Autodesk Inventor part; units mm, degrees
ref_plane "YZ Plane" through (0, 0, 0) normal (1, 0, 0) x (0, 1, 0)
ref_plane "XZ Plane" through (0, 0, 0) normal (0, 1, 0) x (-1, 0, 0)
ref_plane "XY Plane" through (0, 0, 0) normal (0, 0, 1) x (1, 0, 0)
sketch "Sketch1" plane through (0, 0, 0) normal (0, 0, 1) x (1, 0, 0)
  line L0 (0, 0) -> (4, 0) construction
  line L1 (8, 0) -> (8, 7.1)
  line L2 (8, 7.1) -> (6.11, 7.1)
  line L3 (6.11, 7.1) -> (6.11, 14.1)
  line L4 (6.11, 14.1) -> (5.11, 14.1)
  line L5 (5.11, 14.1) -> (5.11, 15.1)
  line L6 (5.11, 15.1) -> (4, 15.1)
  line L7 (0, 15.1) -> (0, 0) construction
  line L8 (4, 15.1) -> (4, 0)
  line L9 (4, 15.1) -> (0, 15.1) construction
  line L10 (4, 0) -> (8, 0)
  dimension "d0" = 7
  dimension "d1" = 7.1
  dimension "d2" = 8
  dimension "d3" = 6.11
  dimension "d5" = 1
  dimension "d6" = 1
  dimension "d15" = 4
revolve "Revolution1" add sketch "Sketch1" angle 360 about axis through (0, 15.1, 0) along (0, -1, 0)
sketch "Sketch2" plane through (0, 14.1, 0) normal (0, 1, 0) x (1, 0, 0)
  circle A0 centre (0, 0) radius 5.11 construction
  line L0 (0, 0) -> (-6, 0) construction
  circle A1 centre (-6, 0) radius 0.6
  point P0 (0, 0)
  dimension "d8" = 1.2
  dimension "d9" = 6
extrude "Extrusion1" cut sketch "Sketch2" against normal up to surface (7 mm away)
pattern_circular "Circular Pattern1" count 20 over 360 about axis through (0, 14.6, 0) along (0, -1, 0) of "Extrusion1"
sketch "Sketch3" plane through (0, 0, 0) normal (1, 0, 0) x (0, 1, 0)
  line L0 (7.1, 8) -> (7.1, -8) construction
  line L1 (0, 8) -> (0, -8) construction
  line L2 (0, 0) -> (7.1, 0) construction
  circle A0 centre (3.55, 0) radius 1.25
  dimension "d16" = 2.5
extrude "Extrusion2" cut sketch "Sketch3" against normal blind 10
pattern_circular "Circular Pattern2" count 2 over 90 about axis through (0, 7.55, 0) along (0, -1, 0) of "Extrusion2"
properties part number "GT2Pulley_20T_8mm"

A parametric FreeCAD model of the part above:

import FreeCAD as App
import Part
import Sketcher

doc = App.newDocument("Part")
params = doc.addObject("Spreadsheet::Sheet", "Params")
for row, (alias, value) in enumerate([
    ("sketch1_width", "4 mm"),
    ("sketch1_width2", "1 mm"),
    ("sketch1_height", "7 mm"),
    ("sketch1_height2", "7.1 mm"),
    ("revolution_angle", "360 deg"),
    ("sketch2_diameter", "1.2 mm"),
    ("pocket1_length", "7 mm"),
    ("sketch3_diameter", "2.5 mm"),
    ("pocket2_length", "10 mm"),
], start=1):
    params.set(f"A{row}", alias)
    params.set(f"B{row}", "=" + value)
    params.setAlias(f"B{row}", alias)

body = doc.addObject("PartDesign::Body", "Body")

# Sketch on XY plane
sketch1 = body.newObject("Sketcher::SketchObject", "Sketch")
sketch1.AttachmentSupport = (doc.getObject("XY_Plane"), [""])
sketch1.MapMode = "FlatFace"
sketch1.addGeometry(Part.LineSegment(App.Vector(4, 0, 0), App.Vector(8, 0, 0)), False)
sketch1.addGeometry(Part.LineSegment(App.Vector(8, 0, 0), App.Vector(8, 7.1, 0)), False)
sketch1.addGeometry(Part.LineSegment(App.Vector(8, 7.1, 0), App.Vector(6.1, 7.1, 0)), False)
sketch1.addGeometry(Part.LineSegment(App.Vector(6.1, 7.1, 0), App.Vector(6.1, 14.1, 0)), False)
sketch1.addGeometry(Part.LineSegment(App.Vector(6.1, 14.1, 0), App.Vector(5.1, 14.1, 0)), False)
sketch1.addGeometry(Part.LineSegment(App.Vector(5.1, 14.1, 0), App.Vector(5.1, 15.1, 0)), False)
sketch1.addGeometry(Part.LineSegment(App.Vector(5.1, 15.1, 0), App.Vector(4, 15.1, 0)), False)
sketch1.addGeometry(Part.LineSegment(App.Vector(4, 15.1, 0), App.Vector(4, 0, 0)), False)
sketch1.addConstraint(Sketcher.Constraint("Coincident", 0, 2, 1, 1))
sketch1.addConstraint(Sketcher.Constraint("Coincident", 1, 2, 2, 1))
sketch1.addConstraint(Sketcher.Constraint("Coincident", 2, 2, 3, 1))
sketch1.addConstraint(Sketcher.Constraint("Coincident", 3, 2, 4, 1))
sketch1.addConstraint(Sketcher.Constraint("Coincident", 4, 2, 5, 1))
sketch1.addConstraint(Sketcher.Constraint("Coincident", 5, 2, 6, 1))
sketch1.addConstraint(Sketcher.Constraint("Coincident", 6, 2, 7, 1))
sketch1.addConstraint(Sketcher.Constraint("Coincident", 7, 2, 0, 1))
sketch1.addConstraint(Sketcher.Constraint("Horizontal", 0))
sketch1.addConstraint(Sketcher.Constraint("Vertical", 1))
sketch1.addConstraint(Sketcher.Constraint("Horizontal", 2))
sketch1.addConstraint(Sketcher.Constraint("Vertical", 3))
sketch1.addConstraint(Sketcher.Constraint("Horizontal", 4))
sketch1.addConstraint(Sketcher.Constraint("Vertical", 5))
sketch1.addConstraint(Sketcher.Constraint("Horizontal", 6))
sketch1.addConstraint(Sketcher.Constraint("Vertical", 7))
sketch1.addConstraint(Sketcher.Constraint("PointOnObject", 0, 2, -1))
sketch1.addConstraint(Sketcher.Constraint("Equal", 4, 5))
sketch1.addConstraint(Sketcher.Constraint("DistanceX", 0, 1, 0, 2, 4.0))
sketch1.addConstraint(Sketcher.Constraint("DistanceX", 4, 2, 4, 1, 1.0))
sketch1.addConstraint(Sketcher.Constraint("DistanceY", 3, 1, 3, 2, 7.0))
sketch1.addConstraint(Sketcher.Constraint("DistanceY", 1, 1, 1, 2, 7.1))
sketch1.addConstraint(Sketcher.Constraint("DistanceX", -1, 1, 0, 2, 8.0))
sketch1.addConstraint(Sketcher.Constraint("DistanceX", -1, 1, 2, 2, 6.11))
sketch1.setExpression("Constraints[18]", "Params.sketch1_width")
sketch1.setExpression("Constraints[19]", "Params.sketch1_width2")
sketch1.setExpression("Constraints[20]", "Params.sketch1_height")
sketch1.setExpression("Constraints[21]", "Params.sketch1_height2")
revolution = body.newObject("PartDesign::Revolution", "Revolution")
revolution.Profile = sketch1
revolution.ReferenceAxis = (sketch1, ["V_Axis"])
revolution.setExpression("Angle", "Params.revolution_angle")

# Sketch on XZ plane
sketch2 = body.newObject("Sketcher::SketchObject", "Sketch001")
sketch2.AttachmentSupport = (doc.getObject("XZ_Plane"), [""])
sketch2.MapMode = "FlatFace"
sketch2.AttachmentOffset = App.Placement(App.Vector(0, 0, -14.1), App.Rotation())
sketch2.addGeometry(Part.Circle(App.Vector(-6, 0, 0), App.Vector(0, 0, 1), 0.6), False)
sketch2.addConstraint(Sketcher.Constraint("PointOnObject", 0, 3, -1))
sketch2.addConstraint(Sketcher.Constraint("Diameter", 0, 1.2))
sketch2.addConstraint(Sketcher.Constraint("DistanceX", 0, 3, -1, 1, 6.0))
sketch2.setExpression("Constraints[1]", "Params.sketch2_diameter")
pocket1 = body.newObject("PartDesign::Pocket", "Pocket")
pocket1.Profile = sketch2
pocket1.setExpression("Length", "Params.pocket1_length")
pocket1.Reversed = True
doc.recompute()

polarpattern = body.newObject("PartDesign::PolarPattern", "PolarPattern")
polarpattern.Originals = [pocket1]
polarpattern.Axis = (doc.getObject("Y_Axis"), [""])
polarpattern.Angle = 360
polarpattern.Occurrences = 20
body.Tip = polarpattern

# Sketch on YZ plane
sketch3 = body.newObject("Sketcher::SketchObject", "Sketch002")
sketch3.AttachmentSupport = (doc.getObject("YZ_Plane"), [""])
sketch3.MapMode = "FlatFace"
sketch3.addGeometry(Part.Circle(App.Vector(3.5, 0, 0), App.Vector(0, 0, 1), 1.2), False)
sketch3.addConstraint(Sketcher.Constraint("PointOnObject", 0, 3, -1))
sketch3.addConstraint(Sketcher.Constraint("Diameter", 0, 2.5))
sketch3.addConstraint(Sketcher.Constraint("DistanceX", -1, 1, 0, 3, 3.55))
sketch3.setExpression("Constraints[1]", "Params.sketch3_diameter")
pocket2 = body.newObject("PartDesign::Pocket", "Pocket001")
pocket2.Profile = sketch3
pocket2.setExpression("Length", "Params.pocket2_length")
doc.recompute()

polarpattern2 = body.newObject("PartDesign::PolarPattern", "PolarPattern001")
polarpattern2.Originals = [pocket2]
polarpattern2.Axis = (doc.getObject("Y_Axis"), [""])
polarpattern2.Angle = 90
polarpattern2.Occurrences = 2
polarpattern2.Reversed = True
body.Tip = polarpattern2

doc.recompute()
